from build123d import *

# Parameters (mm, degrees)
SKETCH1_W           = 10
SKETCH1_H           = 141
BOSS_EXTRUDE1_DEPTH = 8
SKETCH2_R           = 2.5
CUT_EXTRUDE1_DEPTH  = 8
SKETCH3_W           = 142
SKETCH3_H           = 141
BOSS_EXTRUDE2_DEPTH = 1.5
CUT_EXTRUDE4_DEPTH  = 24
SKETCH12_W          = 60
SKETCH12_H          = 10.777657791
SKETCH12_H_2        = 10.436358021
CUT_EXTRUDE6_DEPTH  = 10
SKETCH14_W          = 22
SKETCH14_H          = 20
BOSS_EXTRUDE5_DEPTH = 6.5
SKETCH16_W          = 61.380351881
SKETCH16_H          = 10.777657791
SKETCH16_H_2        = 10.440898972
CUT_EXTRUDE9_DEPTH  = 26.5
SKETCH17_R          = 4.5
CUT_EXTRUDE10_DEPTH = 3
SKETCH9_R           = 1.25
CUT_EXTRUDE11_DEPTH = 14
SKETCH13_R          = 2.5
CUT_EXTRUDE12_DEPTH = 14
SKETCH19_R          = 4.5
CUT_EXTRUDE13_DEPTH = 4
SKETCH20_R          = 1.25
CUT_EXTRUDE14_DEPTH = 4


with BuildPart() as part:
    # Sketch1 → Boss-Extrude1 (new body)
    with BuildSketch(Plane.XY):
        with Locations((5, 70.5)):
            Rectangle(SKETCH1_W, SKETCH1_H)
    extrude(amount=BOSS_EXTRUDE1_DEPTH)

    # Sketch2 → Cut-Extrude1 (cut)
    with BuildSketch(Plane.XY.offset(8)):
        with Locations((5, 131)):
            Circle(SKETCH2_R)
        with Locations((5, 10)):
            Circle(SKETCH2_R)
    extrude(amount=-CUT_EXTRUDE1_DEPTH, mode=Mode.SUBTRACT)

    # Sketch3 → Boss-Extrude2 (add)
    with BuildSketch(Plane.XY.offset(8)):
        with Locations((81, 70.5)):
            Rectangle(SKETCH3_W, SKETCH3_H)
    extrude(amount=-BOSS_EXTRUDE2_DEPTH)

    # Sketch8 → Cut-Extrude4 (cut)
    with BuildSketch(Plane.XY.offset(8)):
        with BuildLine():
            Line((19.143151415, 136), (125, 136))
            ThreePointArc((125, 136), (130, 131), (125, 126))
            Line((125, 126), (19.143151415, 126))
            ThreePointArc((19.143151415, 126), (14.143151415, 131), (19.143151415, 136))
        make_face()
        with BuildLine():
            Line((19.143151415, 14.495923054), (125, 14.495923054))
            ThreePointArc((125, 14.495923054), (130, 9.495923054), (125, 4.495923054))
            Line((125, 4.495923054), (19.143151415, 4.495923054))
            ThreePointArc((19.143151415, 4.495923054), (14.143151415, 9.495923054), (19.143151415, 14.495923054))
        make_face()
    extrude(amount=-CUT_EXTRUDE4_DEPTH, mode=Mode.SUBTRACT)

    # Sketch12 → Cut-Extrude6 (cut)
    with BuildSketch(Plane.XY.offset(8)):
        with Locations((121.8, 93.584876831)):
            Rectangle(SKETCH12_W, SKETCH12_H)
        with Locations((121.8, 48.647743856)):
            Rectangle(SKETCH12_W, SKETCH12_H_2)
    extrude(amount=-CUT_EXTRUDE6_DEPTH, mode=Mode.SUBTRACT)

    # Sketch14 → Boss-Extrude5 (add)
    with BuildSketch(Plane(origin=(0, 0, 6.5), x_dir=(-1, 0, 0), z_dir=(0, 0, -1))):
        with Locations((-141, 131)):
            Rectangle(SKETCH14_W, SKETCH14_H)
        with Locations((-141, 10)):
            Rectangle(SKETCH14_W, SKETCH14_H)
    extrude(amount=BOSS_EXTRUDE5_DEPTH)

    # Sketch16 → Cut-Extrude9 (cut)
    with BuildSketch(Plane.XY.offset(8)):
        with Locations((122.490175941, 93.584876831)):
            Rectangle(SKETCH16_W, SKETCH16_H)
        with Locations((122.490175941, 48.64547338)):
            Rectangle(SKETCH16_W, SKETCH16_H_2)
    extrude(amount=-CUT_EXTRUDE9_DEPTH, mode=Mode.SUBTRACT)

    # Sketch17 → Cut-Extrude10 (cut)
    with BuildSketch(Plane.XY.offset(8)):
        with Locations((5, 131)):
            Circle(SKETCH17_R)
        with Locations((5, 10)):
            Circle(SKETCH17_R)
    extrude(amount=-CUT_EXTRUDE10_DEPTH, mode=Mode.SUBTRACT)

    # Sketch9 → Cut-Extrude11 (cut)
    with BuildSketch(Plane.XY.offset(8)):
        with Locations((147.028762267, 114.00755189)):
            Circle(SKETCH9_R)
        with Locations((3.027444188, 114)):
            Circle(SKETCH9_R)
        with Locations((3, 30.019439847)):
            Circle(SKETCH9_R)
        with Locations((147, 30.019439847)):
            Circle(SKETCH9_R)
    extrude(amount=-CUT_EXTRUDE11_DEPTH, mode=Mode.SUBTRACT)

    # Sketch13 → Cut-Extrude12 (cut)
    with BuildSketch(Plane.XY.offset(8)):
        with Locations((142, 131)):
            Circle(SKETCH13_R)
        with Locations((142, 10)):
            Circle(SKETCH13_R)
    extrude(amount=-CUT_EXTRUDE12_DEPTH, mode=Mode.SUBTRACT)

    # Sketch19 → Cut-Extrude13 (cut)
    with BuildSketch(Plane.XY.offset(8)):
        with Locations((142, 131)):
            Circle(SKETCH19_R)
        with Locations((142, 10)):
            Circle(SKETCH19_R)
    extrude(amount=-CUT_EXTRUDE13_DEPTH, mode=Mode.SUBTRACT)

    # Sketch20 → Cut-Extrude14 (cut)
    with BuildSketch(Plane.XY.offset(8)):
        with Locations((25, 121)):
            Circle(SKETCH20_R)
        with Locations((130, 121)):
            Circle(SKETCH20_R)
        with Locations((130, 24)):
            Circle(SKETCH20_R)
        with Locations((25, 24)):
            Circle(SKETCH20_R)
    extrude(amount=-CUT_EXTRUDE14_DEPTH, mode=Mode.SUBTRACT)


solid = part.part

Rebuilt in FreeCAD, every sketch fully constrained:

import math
import FreeCAD as App
import Part
import Sketcher

V = App.Vector
Q = App.Units.Quantity

doc = App.newDocument("Part")
body = doc.addObject("PartDesign::Body", "Body")

sketch1 = doc.addObject("Sketcher::SketchObject", "Sketch")
body.addObject(sketch1)
sketch1.AttachmentSupport = (doc.XY_Plane, [""])
sketch1.MapMode = "FlatFace"
sketch1.addGeometry(Part.LineSegment(V(0, 141, 0), V(0, 0, 0)), False)
sketch1.addGeometry(Part.LineSegment(V(0, 0, 0), V(10, 0, 0)), False)
sketch1.addGeometry(Part.LineSegment(V(10, 0, 0), V(10, 141, 0)), False)
sketch1.addGeometry(Part.LineSegment(V(10, 141, 0), V(0, 141, 0)), False)
sketch1.addConstraint(Sketcher.Constraint("Coincident", 0, 2, 1, 1))
sketch1.addConstraint(Sketcher.Constraint("Coincident", 1, 2, 2, 1))
sketch1.addConstraint(Sketcher.Constraint("Coincident", 2, 2, 3, 1))
sketch1.addConstraint(Sketcher.Constraint("Coincident", 3, 2, 0, 1))
sketch1.addConstraint(Sketcher.Constraint("Vertical", 0))
sketch1.addConstraint(Sketcher.Constraint("Horizontal", 1))
sketch1.addConstraint(Sketcher.Constraint("Vertical", 2))
sketch1.addConstraint(Sketcher.Constraint("Horizontal", 3))
sketch1.addConstraint(Sketcher.Constraint("Coincident", 0, 2, -1, 1))
sketch1.addConstraint(Sketcher.Constraint("DistanceX", 1, 1, 1, 2, Q("10 mm")))
sketch1.addConstraint(Sketcher.Constraint("DistanceY", 0, 2, 0, 1, Q("141 mm")))
pad1 = doc.addObject("PartDesign::Pad", "Pad")
body.addObject(pad1)
pad1.Profile = sketch1
pad1.Length = 8

sketch2 = doc.addObject("Sketcher::SketchObject", "Sketch001")
body.addObject(sketch2)
sketch2.AttachmentSupport = (doc.XY_Plane, [""])
sketch2.MapMode = "FlatFace"
sketch2.AttachmentOffset = App.Placement(V(0, 0, 8), App.Rotation())
sketch2.addGeometry(Part.Circle(V(5, 131, 0), V(0, 0, 1), 2.5), False)
sketch2.addGeometry(Part.Circle(V(5, 10, 0), V(0, 0, 1), 2.5), False)
sketch2.addConstraint(Sketcher.Constraint("Equal", 0, 1))
sketch2.addConstraint(Sketcher.Constraint("Vertical", 0, 3, 1, 3))
sketch2.addConstraint(Sketcher.Constraint("Diameter", 0, Q("5 mm")))
sketch2.addConstraint(Sketcher.Constraint("DistanceX", -1, 1, 0, 3, Q("5 mm")))
sketch2.addConstraint(Sketcher.Constraint("DistanceY", -1, 1, 0, 3, Q("131 mm")))
sketch2.addConstraint(Sketcher.Constraint("DistanceY", -1, 1, 1, 3, Q("10 mm")))
pocket1 = doc.addObject("PartDesign::Pocket", "Pocket")
body.addObject(pocket1)
pocket1.Profile = sketch2
pocket1.Length = 8

sketch3 = doc.addObject("Sketcher::SketchObject", "Sketch002")
body.addObject(sketch3)
sketch3.AttachmentSupport = (doc.XY_Plane, [""])
sketch3.MapMode = "FlatFace"
sketch3.AttachmentOffset = App.Placement(V(0, 0, 8), App.Rotation())
sketch3.addGeometry(Part.LineSegment(V(10, 141, 0), V(10, 0, 0)), False)
sketch3.addGeometry(Part.LineSegment(V(10, 0, 0), V(152, 0, 0)), False)
sketch3.addGeometry(Part.LineSegment(V(152, 0, 0), V(152, 141, 0)), False)
sketch3.addGeometry(Part.LineSegment(V(152, 141, 0), V(10, 141, 0)), False)
sketch3.addConstraint(Sketcher.Constraint("Coincident", 0, 2, 1, 1))
sketch3.addConstraint(Sketcher.Constraint("Coincident", 1, 2, 2, 1))
sketch3.addConstraint(Sketcher.Constraint("Coincident", 2, 2, 3, 1))
sketch3.addConstraint(Sketcher.Constraint("Coincident", 3, 2, 0, 1))
sketch3.addConstraint(Sketcher.Constraint("Vertical", 0))
sketch3.addConstraint(Sketcher.Constraint("Horizontal", 1))
sketch3.addConstraint(Sketcher.Constraint("Vertical", 2))
sketch3.addConstraint(Sketcher.Constraint("Horizontal", 3))
sketch3.addConstraint(Sketcher.Constraint("PointOnObject", 0, 2, -1))
sketch3.addConstraint(Sketcher.Constraint("DistanceX", 1, 1, 1, 2, Q("142 mm")))
sketch3.addConstraint(Sketcher.Constraint("DistanceY", 0, 2, 0, 1, Q("141 mm")))
sketch3.addConstraint(Sketcher.Constraint("DistanceX", -1, 1, 0, 2, Q("10 mm")))
pad2 = doc.addObject("PartDesign::Pad", "Pad001")
body.addObject(pad2)
pad2.Profile = sketch3
pad2.Length = 1.5
pad2.Reversed = True

sketch4 = doc.addObject("Sketcher::SketchObject", "Sketch003")
body.addObject(sketch4)
sketch4.AttachmentSupport = (doc.XY_Plane, [""])
sketch4.MapMode = "FlatFace"
sketch4.AttachmentOffset = App.Placement(V(0, 0, 8), App.Rotation())
sketch4.addGeometry(Part.LineSegment(V(125, 136, 0), V(19, 136, 0)), False)
sketch4.addGeometry(Part.ArcOfCircle(Part.Circle(V(19, 131, 0), V(0, 0, 1), 5), math.radians(90), math.radians(270)), False)
sketch4.addGeometry(Part.LineSegment(V(19, 126, 0), V(125, 126, 0)), False)
sketch4.addGeometry(Part.ArcOfCircle(Part.Circle(V(125, 131, 0), V(0, 0, 1), 5), math.radians(-90), math.radians(90)), False)
sketch4.addGeometry(Part.LineSegment(V(125, 14, 0), V(19, 14, 0)), False)
sketch4.addGeometry(Part.ArcOfCircle(Part.Circle(V(19, 9, 0), V(0, 0, 1), 5), math.radians(90), math.radians(270)), False)
sketch4.addGeometry(Part.LineSegment(V(19, 4, 0), V(125, 4, 0)), False)
sketch4.addGeometry(Part.ArcOfCircle(Part.Circle(V(125, 9, 0), V(0, 0, 1), 5), math.radians(-90), math.radians(90)), False)
sketch4.addConstraint(Sketcher.Constraint("Tangent", 0, 2, 1, 1))
sketch4.addConstraint(Sketcher.Constraint("Tangent", 1, 2, 2, 1))
sketch4.addConstraint(Sketcher.Constraint("Tangent", 2, 2, 3, 1))
sketch4.addConstraint(Sketcher.Constraint("Tangent", 3, 2, 0, 1))
sketch4.addConstraint(Sketcher.Constraint("Tangent", 4, 2, 5, 1))
sketch4.addConstraint(Sketcher.Constraint("Tangent", 5, 2, 6, 1))
sketch4.addConstraint(Sketcher.Constraint("Tangent", 6, 2, 7, 1))
sketch4.addConstraint(Sketcher.Constraint("Tangent", 7, 2, 4, 1))
sketch4.addConstraint(Sketcher.Constraint("Horizontal", 0))
sketch4.addConstraint(Sketcher.Constraint("Horizontal", 2))
sketch4.addConstraint(Sketcher.Constraint("Horizontal", 4))
sketch4.addConstraint(Sketcher.Constraint("Horizontal", 6))
sketch4.addConstraint(Sketcher.Constraint("Equal", 3, 5))
sketch4.addConstraint(Sketcher.Constraint("Vertical", 1, 3, 5, 3))
sketch4.addConstraint(Sketcher.Constraint("Vertical", 3, 3, 7, 3))
sketch4.addConstraint(Sketcher.Constraint("Radius", 1, Q("5 mm")))
sketch4.addConstraint(Sketcher.Constraint("DistanceY", -1, 1, 1, 3, Q("131 mm")))
sketch4.addConstraint(Sketcher.Constraint("DistanceX", -1, 1, 3, 3, Q("125 mm")))
sketch4.addConstraint(Sketcher.Constraint("DistanceX", 0, 2, 0, 1, Q("105.856849 mm")))
sketch4.addConstraint(Sketcher.Constraint("DistanceY", -1, 1, 5, 3, Q("9.495923 mm")))
pocket2 = doc.addObject("PartDesign::Pocket", "Pocket001")
body.addObject(pocket2)
pocket2.Profile = sketch4
pocket2.Length = 24

sketch5 = doc.addObject("Sketcher::SketchObject", "Sketch004")
body.addObject(sketch5)
sketch5.AttachmentSupport = (doc.XY_Plane, [""])
sketch5.MapMode = "FlatFace"
sketch5.AttachmentOffset = App.Placement(V(0, 0, 8), App.Rotation())
sketch5.addGeometry(Part.LineSegment(V(92, 99, 0), V(92, 88, 0)), False)
sketch5.addGeometry(Part.LineSegment(V(92, 88, 0), V(152, 88, 0)), False)
sketch5.addGeometry(Part.LineSegment(V(152, 88, 0), V(152, 99, 0)), False)
sketch5.addGeometry(Part.LineSegment(V(152, 99, 0), V(92, 99, 0)), False)
sketch5.addGeometry(Part.LineSegment(V(92, 54, 0), V(92, 43, 0)), False)
sketch5.addGeometry(Part.LineSegment(V(92, 43, 0), V(152, 43, 0)), False)
sketch5.addGeometry(Part.LineSegment(V(152, 43, 0), V(152, 54, 0)), False)
sketch5.addGeometry(Part.LineSegment(V(152, 54, 0), V(92, 54, 0)), False)
sketch5.addConstraint(Sketcher.Constraint("Coincident", 0, 2, 1, 1))
sketch5.addConstraint(Sketcher.Constraint("Coincident", 1, 2, 2, 1))
sketch5.addConstraint(Sketcher.Constraint("Coincident", 2, 2, 3, 1))
sketch5.addConstraint(Sketcher.Constraint("Coincident", 3, 2, 0, 1))
sketch5.addConstraint(Sketcher.Constraint("Coincident", 4, 2, 5, 1))
sketch5.addConstraint(Sketcher.Constraint("Coincident", 5, 2, 6, 1))
sketch5.addConstraint(Sketcher.Constraint("Coincident", 6, 2, 7, 1))
sketch5.addConstraint(Sketcher.Constraint("Coincident", 7, 2, 4, 1))
sketch5.addConstraint(Sketcher.Constraint("Vertical", 0))
sketch5.addConstraint(Sketcher.Constraint("Horizontal", 1))
sketch5.addConstraint(Sketcher.Constraint("Vertical", 2))
sketch5.addConstraint(Sketcher.Constraint("Horizontal", 3))
sketch5.addConstraint(Sketcher.Constraint("Vertical", 4))
sketch5.addConstraint(Sketcher.Constraint("Horizontal", 5))
sketch5.addConstraint(Sketcher.Constraint("Vertical", 6))
sketch5.addConstraint(Sketcher.Constraint("Horizontal", 7))
sketch5.addConstraint(Sketcher.Constraint("Vertical", 3, 2, 4, 2))
sketch5.addConstraint(Sketcher.Constraint("Vertical", 2, 2, 5, 2))
sketch5.addConstraint(Sketcher.Constraint("DistanceX", 1, 1, 1, 2, Q("60 mm")))
sketch5.addConstraint(Sketcher.Constraint("DistanceX", -1, 1, 0, 2, Q("91.8 mm")))
sketch5.addConstraint(Sketcher.Constraint("DistanceY", 4, 2, 4, 1, Q("10.436358 mm")))
sketch5.addConstraint(Sketcher.Constraint("DistanceY", 0, 2, 0, 1, Q("10.777658 mm")))
sketch5.addConstraint(Sketcher.Constraint("DistanceY", 4, 2, 3, 2, Q("55.544141 mm")))
sketch5.addConstraint(Sketcher.Constraint("DistanceY", -1, 1, 0, 2, Q("88.196048 mm")))
pocket3 = doc.addObject("PartDesign::Pocket", "Pocket002")
body.addObject(pocket3)
pocket3.Profile = sketch5
pocket3.Length = 10

sketch6 = doc.addObject("Sketcher::SketchObject", "Sketch005")
body.addObject(sketch6)
sketch6.AttachmentSupport = (doc.XY_Plane, [""])
sketch6.MapMode = "FlatFace"
sketch6.AttachmentOffset = App.Placement(V(0, 0, 6.5), App.Rotation())
sketch6.addGeometry(Part.LineSegment(V(152, 141, 0), V(152, 121, 0)), False)
sketch6.addGeometry(Part.LineSegment(V(152, 121, 0), V(130, 121, 0)), False)
sketch6.addGeometry(Part.LineSegment(V(130, 121, 0), V(130, 141, 0)), False)
sketch6.addGeometry(Part.LineSegment(V(130, 141, 0), V(152, 141, 0)), False)
sketch6.addGeometry(Part.LineSegment(V(152, 20, 0), V(152, 0, 0)), False)
sketch6.addGeometry(Part.LineSegment(V(152, 0, 0), V(130, 0, 0)), False)
sketch6.addGeometry(Part.LineSegment(V(130, 0, 0), V(130, 20, 0)), False)
sketch6.addGeometry(Part.LineSegment(V(130, 20, 0), V(152, 20, 0)), False)
sketch6.addConstraint(Sketcher.Constraint("Coincident", 0, 2, 1, 1))
sketch6.addConstraint(Sketcher.Constraint("Coincident", 1, 2, 2, 1))
sketch6.addConstraint(Sketcher.Constraint("Coincident", 2, 2, 3, 1))
sketch6.addConstraint(Sketcher.Constraint("Coincident", 3, 2, 0, 1))
sketch6.addConstraint(Sketcher.Constraint("Coincident", 4, 2, 5, 1))
sketch6.addConstraint(Sketcher.Constraint("Coincident", 5, 2, 6, 1))
sketch6.addConstraint(Sketcher.Constraint("Coincident", 6, 2, 7, 1))
sketch6.addConstraint(Sketcher.Constraint("Coincident", 7, 2, 4, 1))
sketch6.addConstraint(Sketcher.Constraint("Vertical", 0))
sketch6.addConstraint(Sketcher.Constraint("Horizontal", 1))
sketch6.addConstraint(Sketcher.Constraint("Vertical", 2))
sketch6.addConstraint(Sketcher.Constraint("Horizontal", 3))
sketch6.addConstraint(Sketcher.Constraint("Vertical", 4))
sketch6.addConstraint(Sketcher.Constraint("Horizontal", 5))
sketch6.addConstraint(Sketcher.Constraint("Vertical", 6))
sketch6.addConstraint(Sketcher.Constraint("Horizontal", 7))
sketch6.addConstraint(Sketcher.Constraint("PointOnObject", 4, 2, -1))
sketch6.addConstraint(Sketcher.Constraint("Vertical", 3, 2, 4, 2))
sketch6.addConstraint(Sketcher.Constraint("Vertical", 2, 2, 5, 2))
sketch6.addConstraint(Sketcher.Constraint("Equal", 2, 4))
sketch6.addConstraint(Sketcher.Constraint("DistanceX", 1, 2, 1, 1, Q("22 mm")))
sketch6.addConstraint(Sketcher.Constraint("DistanceY", 0, 2, 0, 1, Q("20 mm")))
sketch6.addConstraint(Sketcher.Constraint("DistanceX", -1, 1, 0, 2, Q("152 mm")))
sketch6.addConstraint(Sketcher.Constraint("DistanceY", -1, 1, 0, 2, Q("121 mm")))
pad3 = doc.addObject("PartDesign::Pad", "Pad002")
body.addObject(pad3)
pad3.Profile = sketch6
pad3.Length = 6.5
pad3.Reversed = True

sketch7 = doc.addObject("Sketcher::SketchObject", "Sketch006")
body.addObject(sketch7)
sketch7.AttachmentSupport = (doc.XY_Plane, [""])
sketch7.MapMode = "FlatFace"
sketch7.AttachmentOffset = App.Placement(V(0, 0, 8), App.Rotation())
sketch7.addGeometry(Part.LineSegment(V(92, 99, 0), V(92, 88, 0)), False)
sketch7.addGeometry(Part.LineSegment(V(92, 88, 0), V(153, 88, 0)), False)
sketch7.addGeometry(Part.LineSegment(V(153, 88, 0), V(153, 99, 0)), False)
sketch7.addGeometry(Part.LineSegment(V(153, 99, 0), V(92, 99, 0)), False)
sketch7.addGeometry(Part.LineSegment(V(92, 54, 0), V(92, 43, 0)), False)
sketch7.addGeometry(Part.LineSegment(V(92, 43, 0), V(153, 43, 0)), False)
sketch7.addGeometry(Part.LineSegment(V(153, 43, 0), V(153, 54, 0)), False)
sketch7.addGeometry(Part.LineSegment(V(153, 54, 0), V(92, 54, 0)), False)
sketch7.addConstraint(Sketcher.Constraint("Coincident", 0, 2, 1, 1))
sketch7.addConstraint(Sketcher.Constraint("Coincident", 1, 2, 2, 1))
sketch7.addConstraint(Sketcher.Constraint("Coincident", 2, 2, 3, 1))
sketch7.addConstraint(Sketcher.Constraint("Coincident", 3, 2, 0, 1))
sketch7.addConstraint(Sketcher.Constraint("Coincident", 4, 2, 5, 1))
sketch7.addConstraint(Sketcher.Constraint("Coincident", 5, 2, 6, 1))
sketch7.addConstraint(Sketcher.Constraint("Coincident", 6, 2, 7, 1))
sketch7.addConstraint(Sketcher.Constraint("Coincident", 7, 2, 4, 1))
sketch7.addConstraint(Sketcher.Constraint("Vertical", 0))
sketch7.addConstraint(Sketcher.Constraint("Horizontal", 1))
sketch7.addConstraint(Sketcher.Constraint("Vertical", 2))
sketch7.addConstraint(Sketcher.Constraint("Horizontal", 3))
sketch7.addConstraint(Sketcher.Constraint("Vertical", 4))
sketch7.addConstraint(Sketcher.Constraint("Horizontal", 5))
sketch7.addConstraint(Sketcher.Constraint("Vertical", 6))
sketch7.addConstraint(Sketcher.Constraint("Horizontal", 7))
sketch7.addConstraint(Sketcher.Constraint("Vertical", 3, 2, 4, 2))
sketch7.addConstraint(Sketcher.Constraint("Vertical", 2, 2, 5, 2))
sketch7.addConstraint(Sketcher.Constraint("DistanceX", -1, 1, 0, 2, Q("91.8 mm")))
sketch7.addConstraint(Sketcher.Constraint("DistanceY", 4, 2, 4, 1, Q("10.440899 mm")))
sketch7.addConstraint(Sketcher.Constraint("DistanceX", 1, 1, 1, 2, Q("61.380352 mm")))
sketch7.addConstraint(Sketcher.Constraint("DistanceY", 0, 2, 0, 1, Q("10.777658 mm")))
sketch7.addConstraint(Sketcher.Constraint("DistanceY", 4, 2, 3, 2, Q("55.548682 mm")))
sketch7.addConstraint(Sketcher.Constraint("DistanceY", -1, 1, 0, 2, Q("88.196048 mm")))
pocket4 = doc.addObject("PartDesign::Pocket", "Pocket003")
body.addObject(pocket4)
pocket4.Profile = sketch7
pocket4.Length = 26.5

sketch8 = doc.addObject("Sketcher::SketchObject", "Sketch007")
body.addObject(sketch8)
sketch8.AttachmentSupport = (doc.XY_Plane, [""])
sketch8.MapMode = "FlatFace"
sketch8.AttachmentOffset = App.Placement(V(0, 0, 8), App.Rotation())
sketch8.addGeometry(Part.Circle(V(5, 131, 0), V(0, 0, 1), 4.5), False)
sketch8.addGeometry(Part.Circle(V(5, 10, 0), V(0, 0, 1), 4.5), False)
sketch8.addConstraint(Sketcher.Constraint("Equal", 0, 1))
sketch8.addConstraint(Sketcher.Constraint("Vertical", 0, 3, 1, 3))
sketch8.addConstraint(Sketcher.Constraint("Diameter", 0, Q("9 mm")))
sketch8.addConstraint(Sketcher.Constraint("DistanceX", -1, 1, 0, 3, Q("5 mm")))
sketch8.addConstraint(Sketcher.Constraint("DistanceY", -1, 1, 0, 3, Q("131 mm")))
sketch8.addConstraint(Sketcher.Constraint("DistanceY", -1, 1, 1, 3, Q("10 mm")))
pocket5 = doc.addObject("PartDesign::Pocket", "Pocket004")
body.addObject(pocket5)
pocket5.Profile = sketch8
pocket5.Length = 3

sketch9 = doc.addObject("Sketcher::SketchObject", "Sketch008")
body.addObject(sketch9)
sketch9.AttachmentSupport = (doc.XY_Plane, [""])
sketch9.MapMode = "FlatFace"
sketch9.AttachmentOffset = App.Placement(V(0, 0, 8), App.Rotation())
sketch9.addGeometry(Part.Circle(V(147, 114, 0), V(0, 0, 1), 1.2), False)
sketch9.addGeometry(Part.Circle(V(3, 114, 0), V(0, 0, 1), 1.2), False)
sketch9.addGeometry(Part.Circle(V(3, 30, 0), V(0, 0, 1), 1.2), False)
sketch9.addGeometry(Part.Circle(V(147, 30, 0), V(0, 0, 1), 1.2), False)
sketch9.addConstraint(Sketcher.Constraint("Equal", 0, 1))
sketch9.addConstraint(Sketcher.Constraint("Equal", 1, 2))
sketch9.addConstraint(Sketcher.Constraint("Equal", 2, 3))
sketch9.addConstraint(Sketcher.Constraint("Horizontal", 2, 3, 3, 3))
sketch9.addConstraint(Sketcher.Constraint("Diameter", 0, Q("2.5 mm")))
sketch9.addConstraint(Sketcher.Constraint("DistanceY", -1, 1, 1, 3, Q("114 mm")))
sketch9.addConstraint(Sketcher.Constraint("DistanceX", -1, 1, 2, 3, Q("3 mm")))
sketch9.addConstraint(Sketcher.Constraint("DistanceX", -1, 1, 3, 3, Q("147 mm")))
sketch9.addConstraint(Sketcher.Constraint("DistanceY", -1, 1, 0, 3, Q("114.007552 mm")))
sketch9.addConstraint(Sketcher.Constraint("DistanceY", -1, 1, 2, 3, Q("30.01944 mm")))
sketch9.addConstraint(Sketcher.Constraint("DistanceX", 1, 3, 0, 3, Q("144.001318 mm")))
sketch9.addConstraint(Sketcher.Constraint("DistanceX", -1, 1, 0, 3, Q("147.028762 mm")))
pocket6 = doc.addObject("PartDesign::Pocket", "Pocket005")
body.addObject(pocket6)
pocket6.Profile = sketch9
pocket6.Length = 14

sketch10 = doc.addObject("Sketcher::SketchObject", "Sketch009")
body.addObject(sketch10)
sketch10.AttachmentSupport = (doc.XY_Plane, [""])
sketch10.MapMode = "FlatFace"
sketch10.AttachmentOffset = App.Placement(V(0, 0, 8), App.Rotation())
sketch10.addGeometry(Part.Circle(V(142, 131, 0), V(0, 0, 1), 2.5), False)
sketch10.addGeometry(Part.Circle(V(142, 10, 0), V(0, 0, 1), 2.5), False)
sketch10.addConstraint(Sketcher.Constraint("Equal", 0, 1))
sketch10.addConstraint(Sketcher.Constraint("Vertical", 0, 3, 1, 3))
sketch10.addConstraint(Sketcher.Constraint("Diameter", 0, Q("5 mm")))
sketch10.addConstraint(Sketcher.Constraint("DistanceX", -1, 1, 0, 3, Q("142 mm")))
sketch10.addConstraint(Sketcher.Constraint("DistanceY", -1, 1, 0, 3, Q("131 mm")))
sketch10.addConstraint(Sketcher.Constraint("DistanceY", -1, 1, 1, 3, Q("10 mm")))
pocket7 = doc.addObject("PartDesign::Pocket", "Pocket006")
body.addObject(pocket7)
pocket7.Profile = sketch10
pocket7.Length = 14

sketch11 = doc.addObject("Sketcher::SketchObject", "Sketch010")
body.addObject(sketch11)
sketch11.AttachmentSupport = (doc.XY_Plane, [""])
sketch11.MapMode = "FlatFace"
sketch11.AttachmentOffset = App.Placement(V(0, 0, 8), App.Rotation())
sketch11.addGeometry(Part.Circle(V(142, 131, 0), V(0, 0, 1), 4.5), False)
sketch11.addGeometry(Part.Circle(V(142, 10, 0), V(0, 0, 1), 4.5), False)
sketch11.addConstraint(Sketcher.Constraint("Equal", 0, 1))
sketch11.addConstraint(Sketcher.Constraint("Vertical", 0, 3, 1, 3))
sketch11.addConstraint(Sketcher.Constraint("Diameter", 0, Q("9 mm")))
sketch11.addConstraint(Sketcher.Constraint("DistanceX", -1, 1, 0, 3, Q("142 mm")))
sketch11.addConstraint(Sketcher.Constraint("DistanceY", -1, 1, 0, 3, Q("131 mm")))
sketch11.addConstraint(Sketcher.Constraint("DistanceY", -1, 1, 1, 3, Q("10 mm")))
pocket8 = doc.addObject("PartDesign::Pocket", "Pocket007")
body.addObject(pocket8)
pocket8.Profile = sketch11
pocket8.Length = 4

sketch12 = doc.addObject("Sketcher::SketchObject", "Sketch011")
body.addObject(sketch12)
sketch12.AttachmentSupport = (doc.XY_Plane, [""])
sketch12.MapMode = "FlatFace"
sketch12.AttachmentOffset = App.Placement(V(0, 0, 8), App.Rotation())
sketch12.addGeometry(Part.Circle(V(25, 121, 0), V(0, 0, 1), 1.2), False)
sketch12.addGeometry(Part.Circle(V(130, 121, 0), V(0, 0, 1), 1.2), False)
sketch12.addGeometry(Part.Circle(V(130, 24, 0), V(0, 0, 1), 1.2), False)
sketch12.addGeometry(Part.Circle(V(25, 24, 0), V(0, 0, 1), 1.2), False)
sketch12.addConstraint(Sketcher.Constraint("Equal", 0, 1))
sketch12.addConstraint(Sketcher.Constraint("Equal", 1, 2))
sketch12.addConstraint(Sketcher.Constraint("Equal", 2, 3))
sketch12.addConstraint(Sketcher.Constraint("Horizontal", 0, 3, 1, 3))
sketch12.addConstraint(Sketcher.Constraint("Horizontal", 2, 3, 3, 3))
sketch12.addConstraint(Sketcher.Constraint("Vertical", 1, 3, 2, 3))
sketch12.addConstraint(Sketcher.Constraint("Vertical", 0, 3, 3, 3))
sketch12.addConstraint(Sketcher.Constraint("Diameter", 0, Q("2.5 mm")))
sketch12.addConstraint(Sketcher.Constraint("DistanceX", -1, 1, 0, 3, Q("25 mm")))
sketch12.addConstraint(Sketcher.Constraint("DistanceY", -1, 1, 0, 3, Q("121 mm")))
sketch12.addConstraint(Sketcher.Constraint("DistanceX", -1, 1, 1, 3, Q("130 mm")))
sketch12.addConstraint(Sketcher.Constraint("DistanceY", -1, 1, 2, 3, Q("24 mm")))
pocket9 = doc.addObject("PartDesign::Pocket", "Pocket008")
body.addObject(pocket9)
pocket9.Profile = sketch12
pocket9.Length = 4

doc.recompute()
